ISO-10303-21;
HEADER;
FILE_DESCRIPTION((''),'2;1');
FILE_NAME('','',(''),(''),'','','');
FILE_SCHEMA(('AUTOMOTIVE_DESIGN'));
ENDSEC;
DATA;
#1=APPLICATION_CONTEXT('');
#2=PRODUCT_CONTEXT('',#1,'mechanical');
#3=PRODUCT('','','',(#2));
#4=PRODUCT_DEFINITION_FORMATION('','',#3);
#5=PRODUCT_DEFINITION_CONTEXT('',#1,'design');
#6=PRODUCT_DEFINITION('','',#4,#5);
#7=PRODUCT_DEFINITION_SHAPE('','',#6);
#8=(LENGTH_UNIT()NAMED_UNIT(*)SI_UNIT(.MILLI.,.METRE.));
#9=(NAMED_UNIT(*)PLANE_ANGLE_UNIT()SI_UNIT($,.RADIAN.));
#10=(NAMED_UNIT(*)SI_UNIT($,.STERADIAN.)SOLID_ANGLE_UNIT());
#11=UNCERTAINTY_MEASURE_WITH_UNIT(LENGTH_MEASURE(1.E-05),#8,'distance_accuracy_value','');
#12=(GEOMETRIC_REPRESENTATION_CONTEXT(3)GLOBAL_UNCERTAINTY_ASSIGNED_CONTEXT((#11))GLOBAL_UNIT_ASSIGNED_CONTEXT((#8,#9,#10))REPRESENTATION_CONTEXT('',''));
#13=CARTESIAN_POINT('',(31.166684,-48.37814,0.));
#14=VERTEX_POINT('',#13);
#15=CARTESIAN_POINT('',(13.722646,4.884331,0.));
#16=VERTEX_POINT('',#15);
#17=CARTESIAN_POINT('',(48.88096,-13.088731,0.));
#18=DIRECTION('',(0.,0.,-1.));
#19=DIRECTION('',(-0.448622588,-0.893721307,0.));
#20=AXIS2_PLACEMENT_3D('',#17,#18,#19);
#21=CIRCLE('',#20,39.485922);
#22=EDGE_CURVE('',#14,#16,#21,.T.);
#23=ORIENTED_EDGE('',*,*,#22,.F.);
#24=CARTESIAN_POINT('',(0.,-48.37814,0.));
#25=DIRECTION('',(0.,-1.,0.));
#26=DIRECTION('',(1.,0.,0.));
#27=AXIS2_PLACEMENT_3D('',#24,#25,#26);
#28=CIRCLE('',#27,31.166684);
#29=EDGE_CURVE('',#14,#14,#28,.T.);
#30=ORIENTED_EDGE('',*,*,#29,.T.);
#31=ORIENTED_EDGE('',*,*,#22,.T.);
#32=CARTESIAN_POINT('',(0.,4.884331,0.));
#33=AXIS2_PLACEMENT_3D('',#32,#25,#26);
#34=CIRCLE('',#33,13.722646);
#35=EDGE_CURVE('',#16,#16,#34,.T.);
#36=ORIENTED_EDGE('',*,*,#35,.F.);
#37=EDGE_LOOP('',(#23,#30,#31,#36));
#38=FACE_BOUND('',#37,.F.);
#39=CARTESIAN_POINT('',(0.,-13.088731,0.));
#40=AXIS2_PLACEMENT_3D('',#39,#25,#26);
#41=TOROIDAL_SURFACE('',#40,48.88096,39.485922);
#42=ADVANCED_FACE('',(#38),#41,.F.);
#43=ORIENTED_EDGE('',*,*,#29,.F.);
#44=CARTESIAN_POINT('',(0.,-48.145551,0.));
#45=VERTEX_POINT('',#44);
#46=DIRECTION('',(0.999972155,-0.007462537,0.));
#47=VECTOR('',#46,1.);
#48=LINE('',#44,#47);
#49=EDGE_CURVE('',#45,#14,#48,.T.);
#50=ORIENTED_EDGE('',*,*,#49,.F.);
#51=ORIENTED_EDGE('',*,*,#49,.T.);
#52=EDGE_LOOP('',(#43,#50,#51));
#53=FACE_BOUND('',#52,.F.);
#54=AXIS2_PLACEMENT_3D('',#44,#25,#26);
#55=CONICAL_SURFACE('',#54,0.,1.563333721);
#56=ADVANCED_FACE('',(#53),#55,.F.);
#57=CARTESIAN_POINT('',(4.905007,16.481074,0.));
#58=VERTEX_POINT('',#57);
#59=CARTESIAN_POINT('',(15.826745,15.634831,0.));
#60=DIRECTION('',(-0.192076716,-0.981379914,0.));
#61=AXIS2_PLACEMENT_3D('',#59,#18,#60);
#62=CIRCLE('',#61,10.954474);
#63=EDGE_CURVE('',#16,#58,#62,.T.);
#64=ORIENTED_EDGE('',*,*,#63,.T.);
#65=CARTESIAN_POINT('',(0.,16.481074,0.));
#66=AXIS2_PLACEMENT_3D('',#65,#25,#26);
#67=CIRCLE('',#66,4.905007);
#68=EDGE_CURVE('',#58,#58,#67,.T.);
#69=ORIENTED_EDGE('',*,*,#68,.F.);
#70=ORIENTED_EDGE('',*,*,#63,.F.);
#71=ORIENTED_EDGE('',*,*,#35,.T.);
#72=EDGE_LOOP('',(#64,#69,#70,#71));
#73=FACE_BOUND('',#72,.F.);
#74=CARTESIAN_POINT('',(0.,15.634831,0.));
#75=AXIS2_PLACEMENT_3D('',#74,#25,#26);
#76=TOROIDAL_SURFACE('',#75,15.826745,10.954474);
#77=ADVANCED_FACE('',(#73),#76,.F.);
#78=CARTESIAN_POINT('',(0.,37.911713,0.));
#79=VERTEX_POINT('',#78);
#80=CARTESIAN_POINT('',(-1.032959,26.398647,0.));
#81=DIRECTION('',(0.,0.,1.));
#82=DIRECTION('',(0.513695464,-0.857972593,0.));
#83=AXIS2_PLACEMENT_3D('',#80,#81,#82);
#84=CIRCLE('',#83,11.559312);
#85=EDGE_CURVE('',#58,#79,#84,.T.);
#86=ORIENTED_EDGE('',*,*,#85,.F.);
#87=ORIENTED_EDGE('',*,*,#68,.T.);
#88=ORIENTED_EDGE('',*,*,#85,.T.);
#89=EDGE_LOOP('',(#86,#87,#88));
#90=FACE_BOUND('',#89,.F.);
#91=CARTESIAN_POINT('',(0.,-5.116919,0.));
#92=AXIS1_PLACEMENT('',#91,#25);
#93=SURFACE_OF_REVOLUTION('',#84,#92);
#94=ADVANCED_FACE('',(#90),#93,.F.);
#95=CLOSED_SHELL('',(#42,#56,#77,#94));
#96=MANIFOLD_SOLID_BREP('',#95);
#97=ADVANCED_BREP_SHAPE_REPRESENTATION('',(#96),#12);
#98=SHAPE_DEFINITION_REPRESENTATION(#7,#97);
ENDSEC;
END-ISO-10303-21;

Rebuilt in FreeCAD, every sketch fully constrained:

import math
import FreeCAD as App
import Part
import Sketcher

V = App.Vector
Q = App.Units.Quantity

doc = App.newDocument("Part")
body = doc.addObject("PartDesign::Body", "Body")

sketch1 = body.newObject("Sketcher::SketchObject", "Sketch")
sketch1.AttachmentSupport = (doc.getObject("XY_Plane"), [""])
sketch1.MapMode = "FlatFace"
sketch1.addGeometry(Part.ArcOfCircle(Part.Circle(V(-1.032959, 26.398647, 0), V(0, 0, 1), 11.559312), math.radians(-59.089702), math.radians(84.873116)), False)
sketch1.addGeometry(Part.LineSegment(V(0, 37.911713, 0), V(0, -48.145551, 0)), False)
sketch1.addGeometry(Part.LineSegment(V(0, -48.145551, 0), V(31.166684, -48.37814, 0)), False)
sketch1.addGeometry(Part.ArcOfCircle(Part.Circle(V(48.88096, -13.088731, 0), V(0, 0, 1), 39.485922), math.radians(152.923712), math.radians(243.344655)), False)
sketch1.addGeometry(Part.ArcOfCircle(Part.Circle(V(15.826745, 15.634831, 0), V(0, 0, 1), 10.954474), math.radians(175.569438), math.radians(258.925996)), False)
sketch1.addConstraint(Sketcher.Constraint("Coincident", 0, 2, 1, 1))
sketch1.addConstraint(Sketcher.Constraint("Coincident", 1, 2, 2, 1))
sketch1.addConstraint(Sketcher.Constraint("Coincident", 2, 2, 3, 2))
sketch1.addConstraint(Sketcher.Constraint("Coincident", 3, 1, 4, 2))
sketch1.addConstraint(Sketcher.Constraint("Coincident", 4, 1, 0, 1))
sketch1.addConstraint(Sketcher.Constraint("Vertical", 1))
sketch1.addConstraint(Sketcher.Constraint("PointOnObject", 0, 2, -2))
sketch1.addConstraint(Sketcher.Constraint("Radius", 3, Q("39.485922 mm")))
sketch1.addConstraint(Sketcher.Constraint("Radius", 0, Q("11.559312 mm")))
sketch1.addConstraint(Sketcher.Constraint("Radius", 4, Q("10.954474 mm")))
sketch1.addConstraint(Sketcher.Constraint("DistanceX", 3, 1, 4, 3, Q("2.104099 mm")))
sketch1.addConstraint(Sketcher.Constraint("Distance", 2, Q("31.167552 mm")))
sketch1.addConstraint(Sketcher.Constraint("DistanceY", 1, 2, 1, 1, Q("86.057264 mm")))
sketch1.addConstraint(Sketcher.Constraint("DistanceX", 0, 3, -1, 1, Q("1.032959 mm")))
sketch1.addConstraint(Sketcher.Constraint("DistanceX", -1, 1, 3, 3, Q("48.88096 mm")))
sketch1.addConstraint(Sketcher.Constraint("DistanceY", 3, 3, -1, 1, Q("13.088731 mm")))
sketch1.addConstraint(Sketcher.Constraint("DistanceY", -1, 1, 4, 3, Q("15.634831 mm")))
sketch1.addConstraint(Sketcher.Constraint("DistanceY", 1, 2, -1, 1, Q("48.145551 mm")))
revolution = body.newObject("PartDesign::Revolution", "Revolution")
revolution.Profile = sketch1
revolution.ReferenceAxis = (sketch1, ["V_Axis"])
revolution.Angle = 360

doc.recompute()
